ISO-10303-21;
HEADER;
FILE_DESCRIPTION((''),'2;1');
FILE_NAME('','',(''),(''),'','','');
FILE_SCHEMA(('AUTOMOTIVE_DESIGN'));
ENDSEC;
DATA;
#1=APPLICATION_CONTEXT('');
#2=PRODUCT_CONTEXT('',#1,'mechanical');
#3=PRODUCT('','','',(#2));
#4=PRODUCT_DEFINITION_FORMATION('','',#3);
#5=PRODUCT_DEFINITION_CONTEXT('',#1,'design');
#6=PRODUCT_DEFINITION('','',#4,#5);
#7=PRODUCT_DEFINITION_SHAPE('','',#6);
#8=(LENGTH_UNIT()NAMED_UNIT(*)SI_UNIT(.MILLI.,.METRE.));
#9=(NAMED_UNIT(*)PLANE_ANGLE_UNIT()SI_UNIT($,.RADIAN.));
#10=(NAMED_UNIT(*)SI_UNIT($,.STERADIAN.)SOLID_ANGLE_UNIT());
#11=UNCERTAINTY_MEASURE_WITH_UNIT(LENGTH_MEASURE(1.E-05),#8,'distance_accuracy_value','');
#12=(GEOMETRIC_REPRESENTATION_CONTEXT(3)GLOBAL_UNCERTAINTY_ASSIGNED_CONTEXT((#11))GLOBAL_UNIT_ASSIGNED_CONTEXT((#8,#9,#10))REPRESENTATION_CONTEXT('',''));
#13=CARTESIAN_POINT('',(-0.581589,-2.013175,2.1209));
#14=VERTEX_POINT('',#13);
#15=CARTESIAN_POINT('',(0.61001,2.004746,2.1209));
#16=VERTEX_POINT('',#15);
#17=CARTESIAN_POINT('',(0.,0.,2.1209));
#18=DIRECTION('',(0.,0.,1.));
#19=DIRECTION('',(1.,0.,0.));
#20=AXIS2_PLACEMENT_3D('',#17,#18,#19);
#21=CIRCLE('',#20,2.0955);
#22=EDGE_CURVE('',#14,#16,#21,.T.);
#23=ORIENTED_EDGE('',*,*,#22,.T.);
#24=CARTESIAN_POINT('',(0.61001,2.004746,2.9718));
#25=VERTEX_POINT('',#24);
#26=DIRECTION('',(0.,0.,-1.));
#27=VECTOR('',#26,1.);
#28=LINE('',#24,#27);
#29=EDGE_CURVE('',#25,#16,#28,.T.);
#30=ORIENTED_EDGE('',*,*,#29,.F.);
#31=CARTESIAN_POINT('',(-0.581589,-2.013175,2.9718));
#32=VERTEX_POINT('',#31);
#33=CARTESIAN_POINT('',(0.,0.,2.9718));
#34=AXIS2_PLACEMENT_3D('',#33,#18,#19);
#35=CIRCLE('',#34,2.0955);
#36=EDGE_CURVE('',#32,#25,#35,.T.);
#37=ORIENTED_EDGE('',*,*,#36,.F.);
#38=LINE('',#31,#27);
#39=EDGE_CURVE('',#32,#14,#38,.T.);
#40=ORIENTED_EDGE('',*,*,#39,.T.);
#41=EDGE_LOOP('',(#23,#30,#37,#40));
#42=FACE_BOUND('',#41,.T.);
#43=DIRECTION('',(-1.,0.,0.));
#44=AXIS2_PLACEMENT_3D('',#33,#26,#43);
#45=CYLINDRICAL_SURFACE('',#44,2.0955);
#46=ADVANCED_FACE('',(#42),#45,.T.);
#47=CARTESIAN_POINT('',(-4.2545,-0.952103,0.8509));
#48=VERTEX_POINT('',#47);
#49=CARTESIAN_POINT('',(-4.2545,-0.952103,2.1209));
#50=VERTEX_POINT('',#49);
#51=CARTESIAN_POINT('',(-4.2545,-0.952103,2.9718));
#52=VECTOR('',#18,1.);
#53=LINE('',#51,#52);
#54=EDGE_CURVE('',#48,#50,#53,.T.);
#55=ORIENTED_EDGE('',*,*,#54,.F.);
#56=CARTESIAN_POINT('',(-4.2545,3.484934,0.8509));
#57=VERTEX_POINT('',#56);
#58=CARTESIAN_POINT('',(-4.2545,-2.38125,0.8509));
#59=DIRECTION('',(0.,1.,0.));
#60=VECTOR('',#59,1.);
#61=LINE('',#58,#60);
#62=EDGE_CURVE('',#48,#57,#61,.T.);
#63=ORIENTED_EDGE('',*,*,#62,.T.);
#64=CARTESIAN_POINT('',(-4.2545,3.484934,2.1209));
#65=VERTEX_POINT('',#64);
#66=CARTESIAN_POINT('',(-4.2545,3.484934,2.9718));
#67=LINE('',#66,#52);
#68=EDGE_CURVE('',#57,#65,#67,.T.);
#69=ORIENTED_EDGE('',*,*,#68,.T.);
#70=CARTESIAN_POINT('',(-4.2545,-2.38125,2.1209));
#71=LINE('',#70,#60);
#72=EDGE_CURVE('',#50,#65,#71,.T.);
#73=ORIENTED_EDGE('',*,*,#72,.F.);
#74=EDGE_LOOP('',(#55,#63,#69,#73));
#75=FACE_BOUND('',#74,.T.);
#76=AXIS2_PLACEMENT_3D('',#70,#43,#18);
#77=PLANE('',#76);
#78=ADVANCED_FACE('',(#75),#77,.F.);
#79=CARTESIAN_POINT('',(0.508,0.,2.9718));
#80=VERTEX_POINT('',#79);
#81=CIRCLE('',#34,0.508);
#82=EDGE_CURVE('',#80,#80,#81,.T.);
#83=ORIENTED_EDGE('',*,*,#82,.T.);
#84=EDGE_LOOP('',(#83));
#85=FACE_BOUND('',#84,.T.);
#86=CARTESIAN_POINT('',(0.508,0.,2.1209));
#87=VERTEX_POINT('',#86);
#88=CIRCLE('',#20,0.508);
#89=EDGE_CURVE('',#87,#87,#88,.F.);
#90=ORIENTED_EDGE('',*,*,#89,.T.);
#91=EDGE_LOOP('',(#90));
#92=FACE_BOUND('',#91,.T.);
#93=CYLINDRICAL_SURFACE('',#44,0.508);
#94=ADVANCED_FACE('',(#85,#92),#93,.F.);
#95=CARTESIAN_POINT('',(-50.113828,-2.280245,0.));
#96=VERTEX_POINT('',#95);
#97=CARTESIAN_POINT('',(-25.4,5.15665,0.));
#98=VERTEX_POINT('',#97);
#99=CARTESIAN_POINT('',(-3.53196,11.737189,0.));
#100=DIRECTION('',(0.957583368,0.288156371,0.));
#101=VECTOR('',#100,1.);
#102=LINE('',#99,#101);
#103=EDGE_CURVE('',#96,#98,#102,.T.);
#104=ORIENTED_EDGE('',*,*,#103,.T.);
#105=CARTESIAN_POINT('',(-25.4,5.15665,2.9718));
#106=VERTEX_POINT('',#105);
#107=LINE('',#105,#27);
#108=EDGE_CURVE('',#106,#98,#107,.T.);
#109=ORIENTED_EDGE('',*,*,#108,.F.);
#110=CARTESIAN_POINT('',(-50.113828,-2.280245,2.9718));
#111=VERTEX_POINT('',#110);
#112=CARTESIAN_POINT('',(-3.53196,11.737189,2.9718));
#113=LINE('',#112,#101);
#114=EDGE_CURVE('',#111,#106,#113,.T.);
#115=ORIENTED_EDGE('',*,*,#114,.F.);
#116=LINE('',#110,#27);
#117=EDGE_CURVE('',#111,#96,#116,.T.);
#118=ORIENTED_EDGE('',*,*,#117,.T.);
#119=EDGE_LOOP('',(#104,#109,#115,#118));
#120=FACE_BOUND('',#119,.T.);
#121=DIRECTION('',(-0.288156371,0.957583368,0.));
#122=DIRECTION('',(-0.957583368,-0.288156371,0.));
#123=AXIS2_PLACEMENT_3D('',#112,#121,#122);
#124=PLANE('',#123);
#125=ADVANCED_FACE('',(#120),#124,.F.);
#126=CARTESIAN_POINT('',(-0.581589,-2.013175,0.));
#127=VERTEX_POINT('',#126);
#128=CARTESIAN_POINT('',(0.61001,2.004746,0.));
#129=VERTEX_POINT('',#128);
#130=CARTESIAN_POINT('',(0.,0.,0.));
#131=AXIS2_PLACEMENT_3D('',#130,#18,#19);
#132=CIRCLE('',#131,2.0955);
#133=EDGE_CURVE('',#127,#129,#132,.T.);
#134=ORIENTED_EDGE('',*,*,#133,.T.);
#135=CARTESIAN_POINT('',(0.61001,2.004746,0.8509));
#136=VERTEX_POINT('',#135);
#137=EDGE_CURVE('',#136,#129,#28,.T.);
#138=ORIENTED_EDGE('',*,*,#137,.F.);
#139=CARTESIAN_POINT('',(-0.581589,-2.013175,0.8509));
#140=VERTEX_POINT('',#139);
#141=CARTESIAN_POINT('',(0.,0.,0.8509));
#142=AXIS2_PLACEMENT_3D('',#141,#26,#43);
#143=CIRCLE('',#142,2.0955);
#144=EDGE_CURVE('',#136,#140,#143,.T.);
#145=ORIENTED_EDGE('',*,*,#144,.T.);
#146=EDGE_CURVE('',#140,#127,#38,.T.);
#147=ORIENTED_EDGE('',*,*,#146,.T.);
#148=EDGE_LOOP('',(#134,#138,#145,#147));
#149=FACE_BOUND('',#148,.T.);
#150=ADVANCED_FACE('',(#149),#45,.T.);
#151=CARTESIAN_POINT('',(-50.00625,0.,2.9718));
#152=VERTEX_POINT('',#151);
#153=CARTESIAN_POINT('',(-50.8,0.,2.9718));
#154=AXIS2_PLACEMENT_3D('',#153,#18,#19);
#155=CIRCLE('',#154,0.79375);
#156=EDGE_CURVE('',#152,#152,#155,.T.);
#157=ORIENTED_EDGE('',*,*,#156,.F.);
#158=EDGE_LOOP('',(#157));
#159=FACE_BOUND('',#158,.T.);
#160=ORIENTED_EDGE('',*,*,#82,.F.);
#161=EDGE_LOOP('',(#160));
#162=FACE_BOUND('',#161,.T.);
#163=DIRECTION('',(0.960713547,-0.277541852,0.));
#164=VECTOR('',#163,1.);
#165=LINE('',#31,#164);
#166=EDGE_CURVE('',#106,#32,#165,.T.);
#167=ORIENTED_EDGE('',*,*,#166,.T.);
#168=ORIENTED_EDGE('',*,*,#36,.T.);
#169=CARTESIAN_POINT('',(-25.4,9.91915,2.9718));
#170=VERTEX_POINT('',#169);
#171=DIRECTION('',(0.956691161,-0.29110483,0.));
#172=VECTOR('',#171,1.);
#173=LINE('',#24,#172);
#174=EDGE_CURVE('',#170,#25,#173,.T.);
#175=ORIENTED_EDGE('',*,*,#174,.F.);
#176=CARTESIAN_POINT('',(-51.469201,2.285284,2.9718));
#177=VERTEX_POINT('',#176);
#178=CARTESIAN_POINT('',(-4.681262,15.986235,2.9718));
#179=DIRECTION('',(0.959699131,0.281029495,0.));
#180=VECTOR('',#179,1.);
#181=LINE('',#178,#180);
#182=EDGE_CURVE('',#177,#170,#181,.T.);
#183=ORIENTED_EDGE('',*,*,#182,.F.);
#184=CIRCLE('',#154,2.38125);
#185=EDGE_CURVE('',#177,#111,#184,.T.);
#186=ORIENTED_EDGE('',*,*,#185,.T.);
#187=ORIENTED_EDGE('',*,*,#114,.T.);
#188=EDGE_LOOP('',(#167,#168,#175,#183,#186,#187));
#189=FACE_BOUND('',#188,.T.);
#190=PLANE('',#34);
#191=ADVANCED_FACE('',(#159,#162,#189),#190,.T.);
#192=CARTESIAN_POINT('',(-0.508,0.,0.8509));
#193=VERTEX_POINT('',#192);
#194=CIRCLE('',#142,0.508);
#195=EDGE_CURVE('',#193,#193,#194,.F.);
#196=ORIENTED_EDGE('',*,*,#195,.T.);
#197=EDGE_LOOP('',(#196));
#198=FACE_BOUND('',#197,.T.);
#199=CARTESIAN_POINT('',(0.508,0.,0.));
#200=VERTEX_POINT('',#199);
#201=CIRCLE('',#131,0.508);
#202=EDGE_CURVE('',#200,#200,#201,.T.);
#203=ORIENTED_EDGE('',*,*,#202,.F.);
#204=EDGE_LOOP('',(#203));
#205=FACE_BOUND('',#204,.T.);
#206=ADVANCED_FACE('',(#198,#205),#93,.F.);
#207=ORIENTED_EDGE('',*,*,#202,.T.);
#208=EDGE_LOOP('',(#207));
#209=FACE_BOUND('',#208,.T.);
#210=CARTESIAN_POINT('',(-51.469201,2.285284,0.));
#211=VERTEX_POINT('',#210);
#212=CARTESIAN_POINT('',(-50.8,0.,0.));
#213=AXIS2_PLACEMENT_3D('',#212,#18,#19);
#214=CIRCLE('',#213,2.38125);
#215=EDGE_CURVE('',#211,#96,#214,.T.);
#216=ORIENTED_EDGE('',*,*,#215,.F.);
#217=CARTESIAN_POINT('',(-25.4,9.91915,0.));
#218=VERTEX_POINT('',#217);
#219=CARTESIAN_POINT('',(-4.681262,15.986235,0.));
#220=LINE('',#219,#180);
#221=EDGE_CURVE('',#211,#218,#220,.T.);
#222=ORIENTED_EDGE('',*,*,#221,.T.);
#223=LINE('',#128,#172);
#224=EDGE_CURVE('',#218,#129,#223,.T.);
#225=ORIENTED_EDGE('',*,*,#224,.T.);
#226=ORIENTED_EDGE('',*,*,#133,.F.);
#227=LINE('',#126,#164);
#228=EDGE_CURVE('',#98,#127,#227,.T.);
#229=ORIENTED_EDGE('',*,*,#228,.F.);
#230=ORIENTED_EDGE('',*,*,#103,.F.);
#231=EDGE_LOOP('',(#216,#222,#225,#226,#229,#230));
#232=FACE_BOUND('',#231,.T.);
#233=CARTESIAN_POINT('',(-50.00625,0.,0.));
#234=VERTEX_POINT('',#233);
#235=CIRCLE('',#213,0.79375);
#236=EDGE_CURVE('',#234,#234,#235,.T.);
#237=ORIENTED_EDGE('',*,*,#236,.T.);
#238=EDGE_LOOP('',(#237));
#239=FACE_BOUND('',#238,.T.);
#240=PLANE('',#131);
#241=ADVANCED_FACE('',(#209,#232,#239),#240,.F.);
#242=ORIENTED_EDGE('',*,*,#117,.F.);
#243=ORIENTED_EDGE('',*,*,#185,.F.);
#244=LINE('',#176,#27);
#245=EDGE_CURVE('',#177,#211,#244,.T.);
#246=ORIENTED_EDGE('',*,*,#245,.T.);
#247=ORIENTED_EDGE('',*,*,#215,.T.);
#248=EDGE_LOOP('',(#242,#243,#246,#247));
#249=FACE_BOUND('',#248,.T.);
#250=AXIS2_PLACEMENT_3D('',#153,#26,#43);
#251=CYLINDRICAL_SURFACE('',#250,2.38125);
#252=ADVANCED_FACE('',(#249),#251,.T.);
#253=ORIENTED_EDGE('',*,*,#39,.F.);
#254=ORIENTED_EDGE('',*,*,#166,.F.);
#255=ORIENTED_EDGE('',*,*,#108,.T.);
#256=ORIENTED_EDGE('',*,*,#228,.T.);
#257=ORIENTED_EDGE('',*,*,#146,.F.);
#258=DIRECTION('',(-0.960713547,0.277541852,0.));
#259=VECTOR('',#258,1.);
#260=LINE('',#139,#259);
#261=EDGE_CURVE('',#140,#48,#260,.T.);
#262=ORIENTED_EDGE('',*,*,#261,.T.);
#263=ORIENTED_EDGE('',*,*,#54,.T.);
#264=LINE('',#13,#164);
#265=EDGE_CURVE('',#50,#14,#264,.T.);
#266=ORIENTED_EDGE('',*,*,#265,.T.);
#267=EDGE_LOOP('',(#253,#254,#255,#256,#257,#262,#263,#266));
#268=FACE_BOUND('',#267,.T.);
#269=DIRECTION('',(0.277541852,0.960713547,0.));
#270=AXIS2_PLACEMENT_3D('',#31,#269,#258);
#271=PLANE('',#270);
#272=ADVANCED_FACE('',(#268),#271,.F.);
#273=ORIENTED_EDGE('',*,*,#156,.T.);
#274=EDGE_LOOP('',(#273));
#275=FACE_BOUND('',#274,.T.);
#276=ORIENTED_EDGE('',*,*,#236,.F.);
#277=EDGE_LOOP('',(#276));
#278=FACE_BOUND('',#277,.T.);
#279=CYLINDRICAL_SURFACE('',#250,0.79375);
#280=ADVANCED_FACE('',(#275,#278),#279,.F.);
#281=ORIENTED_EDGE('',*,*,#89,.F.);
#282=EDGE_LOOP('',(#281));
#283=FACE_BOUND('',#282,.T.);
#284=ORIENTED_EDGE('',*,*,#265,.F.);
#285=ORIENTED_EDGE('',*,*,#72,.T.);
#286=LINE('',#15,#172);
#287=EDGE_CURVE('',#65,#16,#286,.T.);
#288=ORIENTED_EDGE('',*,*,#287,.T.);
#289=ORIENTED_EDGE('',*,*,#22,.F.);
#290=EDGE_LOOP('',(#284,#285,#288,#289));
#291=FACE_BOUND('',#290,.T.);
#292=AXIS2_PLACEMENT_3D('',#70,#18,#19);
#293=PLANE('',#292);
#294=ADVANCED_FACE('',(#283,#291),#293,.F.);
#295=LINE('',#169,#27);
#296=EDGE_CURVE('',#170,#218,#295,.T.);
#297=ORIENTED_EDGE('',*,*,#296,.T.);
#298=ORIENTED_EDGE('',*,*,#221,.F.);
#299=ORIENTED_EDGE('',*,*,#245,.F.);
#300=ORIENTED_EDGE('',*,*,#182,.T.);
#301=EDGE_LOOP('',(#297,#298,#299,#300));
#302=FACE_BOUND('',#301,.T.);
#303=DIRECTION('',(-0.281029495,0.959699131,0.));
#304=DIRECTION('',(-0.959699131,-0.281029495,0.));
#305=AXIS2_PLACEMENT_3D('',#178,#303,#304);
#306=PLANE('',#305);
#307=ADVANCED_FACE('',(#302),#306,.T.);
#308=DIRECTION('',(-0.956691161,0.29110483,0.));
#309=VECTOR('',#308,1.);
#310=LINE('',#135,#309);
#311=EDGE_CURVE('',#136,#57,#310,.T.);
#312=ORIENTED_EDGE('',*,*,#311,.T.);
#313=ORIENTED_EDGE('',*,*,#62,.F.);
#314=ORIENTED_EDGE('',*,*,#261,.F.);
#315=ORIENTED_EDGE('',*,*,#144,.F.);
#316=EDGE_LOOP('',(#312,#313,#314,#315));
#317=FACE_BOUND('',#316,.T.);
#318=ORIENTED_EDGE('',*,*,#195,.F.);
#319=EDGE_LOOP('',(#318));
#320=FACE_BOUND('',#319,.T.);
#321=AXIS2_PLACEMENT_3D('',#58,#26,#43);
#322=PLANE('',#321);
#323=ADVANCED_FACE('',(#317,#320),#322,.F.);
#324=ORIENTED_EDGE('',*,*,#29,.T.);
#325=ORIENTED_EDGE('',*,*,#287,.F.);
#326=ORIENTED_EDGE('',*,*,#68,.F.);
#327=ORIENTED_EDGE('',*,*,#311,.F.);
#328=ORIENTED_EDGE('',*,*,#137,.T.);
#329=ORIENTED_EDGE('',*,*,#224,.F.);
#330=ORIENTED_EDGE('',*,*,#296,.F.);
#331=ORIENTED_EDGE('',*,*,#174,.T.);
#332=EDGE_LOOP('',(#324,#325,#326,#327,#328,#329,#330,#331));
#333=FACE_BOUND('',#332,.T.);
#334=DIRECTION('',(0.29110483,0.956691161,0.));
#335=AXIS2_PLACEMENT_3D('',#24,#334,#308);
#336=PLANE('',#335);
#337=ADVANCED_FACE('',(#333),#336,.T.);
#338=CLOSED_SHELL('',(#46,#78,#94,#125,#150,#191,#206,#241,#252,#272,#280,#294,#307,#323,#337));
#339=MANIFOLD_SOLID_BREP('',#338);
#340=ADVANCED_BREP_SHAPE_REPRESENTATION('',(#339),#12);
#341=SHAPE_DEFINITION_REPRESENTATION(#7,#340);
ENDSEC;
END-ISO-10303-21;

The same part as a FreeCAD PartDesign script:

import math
import FreeCAD as App
import Part
import Sketcher
Q = App.Units.Quantity


def add_polygon(sketch, points):
    """Adds a closed chain of lines whose ends are joined by coincident constraints."""
    first, n = sketch.GeometryCount, len(points)
    for a, b in zip(points, points[1:] + points[:1]):
        sketch.addGeometry(Part.LineSegment(App.Vector(*a, 0), App.Vector(*b, 0)), False)
    for i in range(n):
        sketch.addConstraint(Sketcher.Constraint("Coincident", first + i, 2, first + (i + 1) % n, 1))

doc = App.newDocument("Part")
body = doc.addObject("PartDesign::Body", "Body")

sketch1 = doc.addObject("Sketcher::SketchObject", "Sketch")
body.addObject(sketch1)
sketch1.AttachmentSupport = (doc.XY_Plane, [""])
sketch1.MapMode = "FlatFace"
sketch1.addGeometry(Part.LineSegment(App.Vector(-50.1, -2.3, 0), App.Vector(-25.4, 5.2, 0)), False)
sketch1.addGeometry(Part.LineSegment(App.Vector(-25.4, 5.2, 0), App.Vector(-0.6, -2, 0)), False)
sketch1.addGeometry(Part.ArcOfCircle(Part.Circle(App.Vector(0, 0, 0), App.Vector(0, 0, 1), 2.1), math.radians(-106), math.radians(73)), False)
sketch1.addGeometry(Part.LineSegment(App.Vector(0.6, 2, 0), App.Vector(-25.4, 9.9, 0)), False)
sketch1.addGeometry(Part.LineSegment(App.Vector(-25.4, 9.9, 0), App.Vector(-51.5, 2.3, 0)), False)
sketch1.addGeometry(Part.ArcOfCircle(Part.Circle(App.Vector(-50.8, 0, 0), App.Vector(0, 0, 1), 2.4), math.radians(106), math.radians(287)), False)
sketch1.addGeometry(Part.Circle(App.Vector(-50.8, 0, 0), App.Vector(0, 0, 1), 0.8), False)
sketch1.addConstraint(Sketcher.Constraint("Coincident", 0, 2, 1, 1))
sketch1.addConstraint(Sketcher.Constraint("Tangent", 1, 2, 2, 1))
sketch1.addConstraint(Sketcher.Constraint("Tangent", 2, 2, 3, 1))
sketch1.addConstraint(Sketcher.Constraint("Coincident", 3, 2, 4, 1))
sketch1.addConstraint(Sketcher.Constraint("Tangent", 4, 2, 5, 1))
sketch1.addConstraint(Sketcher.Constraint("Tangent", 5, 2, 0, 1))
sketch1.addConstraint(Sketcher.Constraint("Coincident", 2, 3, -1, 1))
sketch1.addConstraint(Sketcher.Constraint("Coincident", 6, 3, 5, 3))
sketch1.addConstraint(Sketcher.Constraint("PointOnObject", 5, 3, -1))
sketch1.addConstraint(Sketcher.Constraint("Vertical", 0, 2, 3, 2))
sketch1.addConstraint(Sketcher.Constraint("Diameter", 6, Q("0.0625 in")))
sketch1.addConstraint(Sketcher.Constraint("DistanceX", 5, 3, -1, 1, Q("2 in")))
sketch1.addConstraint(Sketcher.Constraint("DistanceX", 0, 2, -1, 1, Q("1 in")))
sketch1.addConstraint(Sketcher.Constraint("Radius", 5, Q("0.09375 in")))
sketch1.addConstraint(Sketcher.Constraint("Radius", 2, Q("0.0825 in")))
sketch1.addConstraint(Sketcher.Constraint("DistanceY", 0, 2, 3, 2, Q("0.1875 in")))
sketch1.addConstraint(Sketcher.Constraint("DistanceX", 4, 2, -1, 1, Q("51.469201 mm")))
pad1 = doc.addObject("PartDesign::Pad", "Pad")
body.addObject(pad1)
pad1.Profile = sketch1
pad1.Length = Q("0.117 in")

sketch2 = doc.addObject("Sketcher::SketchObject", "Sketch001")
body.addObject(sketch2)
sketch2.AttachmentSupport = (doc.XZ_Plane, [""])
sketch2.MapMode = "FlatFace"
add_polygon(sketch2, [(-4.3, 0.9), (-4.3, 2.1), (4.3, 2.1), (4.3, 0.9)])
sketch2.addConstraint(Sketcher.Constraint("Vertical", 0))
sketch2.addConstraint(Sketcher.Constraint("Horizontal", 1))
sketch2.addConstraint(Sketcher.Constraint("Vertical", 2))
sketch2.addConstraint(Sketcher.Constraint("Horizontal", 3))
sketch2.addConstraint(Sketcher.Constraint("DistanceY", 0, 1, 0, 2, Q("0.05 in")))
sketch2.addConstraint(Sketcher.Constraint("DistanceX", 0, 2, -1, 1, Q("0.1675 in")))
sketch2.addConstraint(Sketcher.Constraint("DistanceY", -1, 1, 0, 2, Q("0.0835 in")))
sketch2.addConstraint(Sketcher.Constraint("DistanceX", 1, 1, 1, 2, Q("8.538559 mm")))
pocket1 = doc.addObject("PartDesign::Pocket", "Pocket")
body.addObject(pocket1)
pocket1.Profile = sketch2
pocket1.Type = "ThroughAll"
pocket1.Midplane = True

sketch3 = doc.addObject("Sketcher::SketchObject", "Sketch002")
body.addObject(sketch3)
sketch3.AttachmentSupport = (doc.XY_Plane, [""])
sketch3.MapMode = "FlatFace"
sketch3.addGeometry(Part.Circle(App.Vector(0, 0, 0), App.Vector(0, 0, 1), 0.5), False)
sketch3.addConstraint(Sketcher.Constraint("Coincident", 0, 3, -1, 1))
sketch3.addConstraint(Sketcher.Constraint("Diameter", 0, Q("0.04 in")))
pocket2 = doc.addObject("PartDesign::Pocket", "Pocket001")
body.addObject(pocket2)
pocket2.Profile = sketch3
pocket2.Type = "ThroughAll"
pocket2.Midplane = True

doc.recompute()
